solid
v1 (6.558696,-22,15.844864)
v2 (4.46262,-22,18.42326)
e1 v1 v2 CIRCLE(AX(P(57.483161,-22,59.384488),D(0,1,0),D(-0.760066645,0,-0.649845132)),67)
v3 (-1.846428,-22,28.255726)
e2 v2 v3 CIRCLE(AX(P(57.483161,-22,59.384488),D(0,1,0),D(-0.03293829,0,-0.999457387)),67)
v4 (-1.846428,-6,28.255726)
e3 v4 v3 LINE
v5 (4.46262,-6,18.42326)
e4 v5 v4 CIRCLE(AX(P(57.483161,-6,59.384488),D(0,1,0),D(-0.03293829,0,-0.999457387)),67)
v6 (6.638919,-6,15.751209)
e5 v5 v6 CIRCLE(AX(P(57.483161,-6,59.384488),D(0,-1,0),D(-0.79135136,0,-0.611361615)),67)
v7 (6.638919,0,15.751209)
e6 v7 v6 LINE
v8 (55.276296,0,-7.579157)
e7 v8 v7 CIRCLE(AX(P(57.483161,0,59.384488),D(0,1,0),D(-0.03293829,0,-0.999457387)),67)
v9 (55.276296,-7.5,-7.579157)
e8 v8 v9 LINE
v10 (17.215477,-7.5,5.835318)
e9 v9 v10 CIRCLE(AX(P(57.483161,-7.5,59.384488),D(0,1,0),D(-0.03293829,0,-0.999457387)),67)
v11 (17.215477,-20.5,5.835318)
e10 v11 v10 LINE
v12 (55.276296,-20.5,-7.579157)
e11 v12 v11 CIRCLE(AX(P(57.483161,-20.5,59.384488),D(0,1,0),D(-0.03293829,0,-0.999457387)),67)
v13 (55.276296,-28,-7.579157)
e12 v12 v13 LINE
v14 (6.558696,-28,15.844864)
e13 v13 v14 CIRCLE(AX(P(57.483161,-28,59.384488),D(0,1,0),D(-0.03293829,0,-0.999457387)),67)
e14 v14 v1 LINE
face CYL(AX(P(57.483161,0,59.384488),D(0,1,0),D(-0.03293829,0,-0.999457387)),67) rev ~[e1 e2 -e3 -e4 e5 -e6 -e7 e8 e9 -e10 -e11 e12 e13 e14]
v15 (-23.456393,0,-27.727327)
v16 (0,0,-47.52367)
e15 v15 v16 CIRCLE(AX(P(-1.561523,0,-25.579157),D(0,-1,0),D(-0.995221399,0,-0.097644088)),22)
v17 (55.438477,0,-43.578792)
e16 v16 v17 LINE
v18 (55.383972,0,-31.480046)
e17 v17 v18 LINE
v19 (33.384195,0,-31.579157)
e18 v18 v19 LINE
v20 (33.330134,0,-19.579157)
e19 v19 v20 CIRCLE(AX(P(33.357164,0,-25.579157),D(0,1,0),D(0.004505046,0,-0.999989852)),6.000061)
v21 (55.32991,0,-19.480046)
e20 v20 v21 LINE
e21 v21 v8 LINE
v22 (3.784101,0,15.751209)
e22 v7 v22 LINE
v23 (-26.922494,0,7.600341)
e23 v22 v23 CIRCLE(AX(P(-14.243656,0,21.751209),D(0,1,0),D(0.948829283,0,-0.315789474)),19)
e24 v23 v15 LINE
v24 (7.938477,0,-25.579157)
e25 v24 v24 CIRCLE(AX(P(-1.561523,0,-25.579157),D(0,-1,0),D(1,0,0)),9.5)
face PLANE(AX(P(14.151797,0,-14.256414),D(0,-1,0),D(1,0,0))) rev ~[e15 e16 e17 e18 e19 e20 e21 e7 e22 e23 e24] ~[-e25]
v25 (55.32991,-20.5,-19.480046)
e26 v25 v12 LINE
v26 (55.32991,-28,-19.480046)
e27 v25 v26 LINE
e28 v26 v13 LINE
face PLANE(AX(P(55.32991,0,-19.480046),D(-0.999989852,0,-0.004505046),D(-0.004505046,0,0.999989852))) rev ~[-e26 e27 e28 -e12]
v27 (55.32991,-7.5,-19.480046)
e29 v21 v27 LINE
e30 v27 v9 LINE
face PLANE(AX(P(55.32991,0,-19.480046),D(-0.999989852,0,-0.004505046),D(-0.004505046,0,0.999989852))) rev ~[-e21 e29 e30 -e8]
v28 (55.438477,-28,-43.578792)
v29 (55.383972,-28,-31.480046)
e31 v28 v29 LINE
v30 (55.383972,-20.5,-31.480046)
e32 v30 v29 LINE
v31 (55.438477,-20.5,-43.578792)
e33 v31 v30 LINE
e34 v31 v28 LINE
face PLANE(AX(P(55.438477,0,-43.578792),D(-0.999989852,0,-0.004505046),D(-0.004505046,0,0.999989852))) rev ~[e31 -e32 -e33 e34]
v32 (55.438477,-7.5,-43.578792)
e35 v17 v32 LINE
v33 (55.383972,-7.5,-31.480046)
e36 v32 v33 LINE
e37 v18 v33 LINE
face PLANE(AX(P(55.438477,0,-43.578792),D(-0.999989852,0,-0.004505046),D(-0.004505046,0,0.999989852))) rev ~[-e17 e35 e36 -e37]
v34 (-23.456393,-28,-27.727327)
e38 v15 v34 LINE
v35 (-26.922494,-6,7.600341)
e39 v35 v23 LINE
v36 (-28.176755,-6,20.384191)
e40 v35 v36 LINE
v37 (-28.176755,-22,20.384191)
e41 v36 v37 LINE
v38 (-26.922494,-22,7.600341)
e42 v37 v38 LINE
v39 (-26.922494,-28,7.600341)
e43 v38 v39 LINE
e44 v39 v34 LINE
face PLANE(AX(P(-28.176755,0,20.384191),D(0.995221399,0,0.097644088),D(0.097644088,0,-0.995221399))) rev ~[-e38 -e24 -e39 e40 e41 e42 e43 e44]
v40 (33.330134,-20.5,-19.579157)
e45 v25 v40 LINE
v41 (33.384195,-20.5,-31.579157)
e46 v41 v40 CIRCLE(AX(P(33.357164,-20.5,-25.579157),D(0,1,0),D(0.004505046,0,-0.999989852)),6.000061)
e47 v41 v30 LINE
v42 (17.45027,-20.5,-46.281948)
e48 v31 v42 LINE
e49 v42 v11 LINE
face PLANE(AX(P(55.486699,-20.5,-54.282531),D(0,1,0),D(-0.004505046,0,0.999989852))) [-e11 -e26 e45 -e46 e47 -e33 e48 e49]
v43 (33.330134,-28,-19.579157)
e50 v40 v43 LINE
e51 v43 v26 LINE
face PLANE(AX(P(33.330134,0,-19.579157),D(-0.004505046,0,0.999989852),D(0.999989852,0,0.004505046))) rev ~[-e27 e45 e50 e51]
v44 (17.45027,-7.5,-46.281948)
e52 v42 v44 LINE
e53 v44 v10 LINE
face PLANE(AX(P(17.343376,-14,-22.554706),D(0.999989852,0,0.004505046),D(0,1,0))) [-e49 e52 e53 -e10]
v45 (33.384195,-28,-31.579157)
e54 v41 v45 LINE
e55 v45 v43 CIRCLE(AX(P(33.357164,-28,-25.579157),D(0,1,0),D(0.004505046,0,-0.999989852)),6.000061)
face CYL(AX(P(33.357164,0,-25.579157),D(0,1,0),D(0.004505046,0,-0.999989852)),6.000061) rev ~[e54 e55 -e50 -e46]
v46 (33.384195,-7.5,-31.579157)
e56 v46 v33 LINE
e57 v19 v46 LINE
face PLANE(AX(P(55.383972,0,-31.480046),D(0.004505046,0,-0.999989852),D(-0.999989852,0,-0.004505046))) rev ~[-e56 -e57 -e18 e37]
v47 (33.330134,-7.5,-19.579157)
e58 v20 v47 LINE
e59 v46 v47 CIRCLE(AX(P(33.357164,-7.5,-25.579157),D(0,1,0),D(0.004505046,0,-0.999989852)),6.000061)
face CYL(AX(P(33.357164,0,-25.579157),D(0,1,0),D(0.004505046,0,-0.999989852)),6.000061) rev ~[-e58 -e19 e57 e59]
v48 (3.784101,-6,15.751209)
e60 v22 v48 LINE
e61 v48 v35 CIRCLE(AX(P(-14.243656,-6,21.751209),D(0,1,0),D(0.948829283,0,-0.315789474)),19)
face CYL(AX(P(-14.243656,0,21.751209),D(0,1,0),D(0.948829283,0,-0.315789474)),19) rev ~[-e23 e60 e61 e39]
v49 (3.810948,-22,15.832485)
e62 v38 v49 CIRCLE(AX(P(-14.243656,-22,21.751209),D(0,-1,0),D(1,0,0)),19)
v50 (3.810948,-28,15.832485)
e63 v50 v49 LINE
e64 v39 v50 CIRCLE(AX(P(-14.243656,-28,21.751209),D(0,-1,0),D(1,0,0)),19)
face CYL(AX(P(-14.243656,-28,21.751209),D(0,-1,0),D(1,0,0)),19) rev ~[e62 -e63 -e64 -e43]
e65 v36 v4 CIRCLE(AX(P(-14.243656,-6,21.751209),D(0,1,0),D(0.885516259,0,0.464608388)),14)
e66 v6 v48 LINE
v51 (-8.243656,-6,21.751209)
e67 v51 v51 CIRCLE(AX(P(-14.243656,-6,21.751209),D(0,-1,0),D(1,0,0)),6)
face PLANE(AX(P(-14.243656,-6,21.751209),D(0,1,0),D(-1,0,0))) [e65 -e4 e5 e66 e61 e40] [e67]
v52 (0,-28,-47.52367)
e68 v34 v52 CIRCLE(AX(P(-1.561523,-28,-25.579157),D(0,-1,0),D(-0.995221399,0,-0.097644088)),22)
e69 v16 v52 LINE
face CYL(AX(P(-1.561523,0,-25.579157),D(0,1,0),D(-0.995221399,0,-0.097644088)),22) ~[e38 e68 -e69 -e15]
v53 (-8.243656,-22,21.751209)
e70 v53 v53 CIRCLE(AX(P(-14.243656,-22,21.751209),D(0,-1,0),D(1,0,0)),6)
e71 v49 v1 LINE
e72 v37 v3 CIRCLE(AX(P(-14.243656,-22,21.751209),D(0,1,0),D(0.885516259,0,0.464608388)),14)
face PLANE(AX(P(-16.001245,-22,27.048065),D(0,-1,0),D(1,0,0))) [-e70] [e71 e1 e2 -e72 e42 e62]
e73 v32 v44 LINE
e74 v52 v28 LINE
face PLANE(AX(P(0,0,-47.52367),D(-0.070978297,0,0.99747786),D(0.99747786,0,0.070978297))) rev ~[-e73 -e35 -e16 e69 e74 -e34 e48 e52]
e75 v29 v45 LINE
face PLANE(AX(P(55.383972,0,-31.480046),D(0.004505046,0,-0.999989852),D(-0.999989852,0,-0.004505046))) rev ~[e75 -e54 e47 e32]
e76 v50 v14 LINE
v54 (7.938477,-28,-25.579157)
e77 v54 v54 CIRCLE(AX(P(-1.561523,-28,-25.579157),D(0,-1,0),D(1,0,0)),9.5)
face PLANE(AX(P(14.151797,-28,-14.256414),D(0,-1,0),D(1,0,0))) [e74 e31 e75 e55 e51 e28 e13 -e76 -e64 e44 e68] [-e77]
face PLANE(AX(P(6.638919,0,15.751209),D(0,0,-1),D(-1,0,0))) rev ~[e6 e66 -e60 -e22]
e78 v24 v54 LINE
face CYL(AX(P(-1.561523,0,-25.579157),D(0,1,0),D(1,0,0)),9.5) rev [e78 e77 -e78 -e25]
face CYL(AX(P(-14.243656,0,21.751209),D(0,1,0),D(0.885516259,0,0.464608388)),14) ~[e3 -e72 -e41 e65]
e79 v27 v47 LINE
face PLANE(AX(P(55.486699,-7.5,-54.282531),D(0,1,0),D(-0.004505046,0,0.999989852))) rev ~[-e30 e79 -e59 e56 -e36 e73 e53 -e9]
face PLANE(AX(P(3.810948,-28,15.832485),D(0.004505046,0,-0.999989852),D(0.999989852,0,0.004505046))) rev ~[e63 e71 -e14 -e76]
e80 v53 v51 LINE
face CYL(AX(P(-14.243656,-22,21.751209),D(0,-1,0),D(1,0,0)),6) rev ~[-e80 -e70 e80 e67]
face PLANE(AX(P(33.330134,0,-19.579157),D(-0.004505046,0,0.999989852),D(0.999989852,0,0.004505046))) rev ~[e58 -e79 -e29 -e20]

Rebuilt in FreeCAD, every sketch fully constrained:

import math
import FreeCAD as App
import Part
import Sketcher

V = App.Vector
Q = App.Units.Quantity


def add_polygon(sketch, points):
    """Adds a closed chain of lines whose ends are joined by coincident constraints."""
    first, n = sketch.GeometryCount, len(points)
    for a, b in zip(points, points[1:] + points[:1]):
        sketch.addGeometry(Part.LineSegment(App.Vector(*a, 0), App.Vector(*b, 0)), False)
    for i in range(n):
        sketch.addConstraint(Sketcher.Constraint("Coincident", first + i, 2, first + (i + 1) % n, 1))

doc = App.newDocument("Part")
body = doc.addObject("PartDesign::Body", "Body")

# Sketch on XZ plane
sketch1 = body.newObject("Sketcher::SketchObject", "Sketch")
sketch1.AttachmentSupport = (doc.getObject("XZ_Plane"), [""])
sketch1.MapMode = "FlatFace"
sketch1.addGeometry([
    Part.LineSegment(V(55.32991, -19.480046, 0), V(55.276296, -7.579157, 0)),  # 0
    Part.ArcOfCircle(Part.Circle(V(57.483161, 59.384488, 0), V(0, 0, 1), 67), math.radians(-152.315119), math.radians(-91.887566)),  # 1
    Part.ArcOfCircle(Part.Circle(V(-14.243656, 21.751209, 0), V(0, 0, 1), 14), math.radians(27.684881), math.radians(185.603523)),  # 2
    Part.LineSegment(V(-28.176755, 20.384191, 0), V(-23.456393, -27.727327, 0)),  # 3
    Part.ArcOfCircle(Part.Circle(V(-1.561523, -25.579157, 0), V(0, 0, 1), 22), math.radians(-174.396477), math.radians(-85.929821)),  # 4
    Part.LineSegment(V(0, -47.52367, 0), V(55.438477, -43.578792, 0)),  # 5
    Part.LineSegment(V(55.438477, -43.578792, 0), V(55.383972, -31.480046, 0)),  # 6
    Part.LineSegment(V(55.383972, -31.480046, 0), V(33.384195, -31.579157, 0)),  # 7
    Part.ArcOfCircle(Part.Circle(V(33.357164, -25.579157, 0), V(0, 0, 1), 6.000061), math.radians(90.258121), math.radians(270.258121)),  # 8
    Part.LineSegment(V(33.330134, -19.579157, 0), V(55.32991, -19.480046, 0)),  # 9
    Part.Circle(V(-1.561523, -25.579157, 0), V(0, 0, 1), 9.5),  # 10
], False)
sketch1.addConstraint([
    Sketcher.Constraint("Coincident", 0, 2, 1, 2),
    Sketcher.Constraint("Coincident", 1, 1, 2, 1),
    Sketcher.Constraint("Coincident", 2, 2, 3, 1),
    Sketcher.Constraint("Coincident", 3, 2, 4, 1),
    Sketcher.Constraint("Coincident", 4, 2, 5, 1),
    Sketcher.Constraint("Coincident", 5, 2, 6, 1),
    Sketcher.Constraint("Coincident", 6, 2, 7, 1),
    Sketcher.Constraint("Coincident", 7, 2, 8, 2),
    Sketcher.Constraint("Coincident", 8, 1, 9, 1),
    Sketcher.Constraint("Coincident", 9, 2, 0, 1),
    Sketcher.Constraint("Coincident", 10, 3, 4, 3),
    Sketcher.Constraint("PointOnObject", 4, 2, -2),
    Sketcher.Constraint("Diameter", 10, Q("19 mm")),
    Sketcher.Constraint("Radius", 1, Q("67 mm")),
    Sketcher.Constraint("Radius", 2, Q("14 mm")),
    Sketcher.Constraint("Radius", 4, Q("22 mm")),
    Sketcher.Constraint("Distance", 7, Q("22 mm")),
    Sketcher.Constraint("Distance", 9, Q("22 mm")),
    Sketcher.Constraint("DistanceY", 8, 3, 0, 2, Q("18 mm")),
    Sketcher.Constraint("DistanceY", 4, 3, 0, 2, Q("18 mm")),
    Sketcher.Constraint("DistanceX", 4, 3, 5, 2, Q("57 mm")),
    Sketcher.Constraint("DistanceY", 7, 2, 8, 3, Q("6 mm")),
    Sketcher.Constraint("DistanceY", 8, 3, 8, 1, Q("6 mm")),
    Sketcher.Constraint("DistanceY", 6, 2, 9, 2, Q("12 mm")),
    Sketcher.Constraint("DistanceX", 2, 2, 2, 3, Q("13.9331 mm")),
    Sketcher.Constraint("DistanceX", 7, 2, 0, 2, Q("21.892101 mm")),
    Sketcher.Constraint("Distance", 0, Q("11.90101 mm")),
    Sketcher.Constraint("Distance", 6, Q("12.098868 mm")),
    Sketcher.Constraint("DistanceX", -1, 1, 1, 3, Q("57.483161 mm")),
    Sketcher.Constraint("DistanceY", -1, 1, 2, 3, Q("21.751209 mm")),
    Sketcher.Constraint("DistanceX", 1, 1, -1, 1, Q("1.846428 mm")),
    Sketcher.Constraint("DistanceY", 4, 2, -1, 1, Q("47.52367 mm")),
    Sketcher.Constraint("DistanceY", 5, 2, -1, 1, Q("43.578792 mm")),
    Sketcher.Constraint("DistanceX", -1, 1, 6, 2, Q("55.383972 mm")),
    Sketcher.Constraint("DistanceX", -1, 1, 9, 2, Q("55.32991 mm")),
    Sketcher.Constraint("DistanceX", 3, 2, 4, 3, Q("21.894871 mm")),
])
pad1 = body.newObject("PartDesign::Pad", "Pad")
pad1.Profile = sketch1
pad1.Length = 28

# Sketch on XZ plane
sketch2 = body.newObject("Sketcher::SketchObject", "Sketch001")
sketch2.AttachmentSupport = (doc.getObject("XZ_Plane"), [""])
sketch2.MapMode = "FlatFace"
sketch2.AttachmentOffset = App.Placement(V(0, 0, 28), App.Rotation())
sketch2.addGeometry([
    Part.ArcOfCircle(Part.Circle(V(-14.2, 21.8, 0), V(0, 0, 1), 19), math.radians(-10.09), math.radians(0)),
    Part.ArcOfCircle(Part.Circle(V(-14.2, 21.8, 0), V(0, 0, 1), 19), math.radians(0), math.radians(342)),
    Part.LineSegment(V(3.8, 15.8, 0), V(6.6, 15.8, 0)),
    Part.ArcOfCircle(Part.Circle(V(57.5, 59.4, 0), V(0, 0, 1), 67), math.radians(-142.31), math.radians(-139.47)),
], False)
sketch2.addConstraint([
    Sketcher.Constraint("Tangent", 0, 2, 1, 1),
    Sketcher.Constraint("Coincident", 1, 2, 2, 1),
    Sketcher.Constraint("Coincident", 2, 2, 3, 2),
    Sketcher.Constraint("Coincident", 3, 1, 0, 1),
    Sketcher.Constraint("Equal", 0, 1),
    Sketcher.Constraint("Horizontal", 1, 3, 0, 2),
    Sketcher.Constraint("Radius", 0, Q("19 mm")),
    Sketcher.Constraint("Radius", 3, Q("67 mm")),
    Sketcher.Constraint("DistanceY", -1, 1, 0, 3, Q("21.751209 mm")),
    Sketcher.Constraint("DistanceX", -1, 1, 3, 3, Q("57.483161 mm")),
    Sketcher.Constraint("DistanceX", -1, 1, 3, 1, Q("4.46262 mm")),
    Sketcher.Constraint("DistanceY", -1, 1, 3, 1, Q("18.42326 mm")),
    Sketcher.Constraint("DistanceX", 1, 2, 2, 2, Q("2.747748 mm")),
    Sketcher.Constraint("DistanceY", 1, 2, 2, 2, Q("0.012379 mm")),
])
pocket1 = body.newObject("PartDesign::Pocket", "Pocket")
pocket1.Profile = sketch2
pocket1.Length = 6

# Sketch on XZ plane
sketch3 = body.newObject("Sketcher::SketchObject", "Sketch002")
sketch3.AttachmentSupport = (doc.getObject("XZ_Plane"), [""])
sketch3.MapMode = "FlatFace"
sketch3.AttachmentOffset = App.Placement(V(0, 0, 22), App.Rotation())
sketch3.addGeometry(Part.Circle(V(-14, 22, 0), V(0, 0, 1), 6), False)
sketch3.addConstraint([
    Sketcher.Constraint("Diameter", 0, Q("12 mm")),
    Sketcher.Constraint("DistanceY", -1, 1, 0, 3, Q("21.751209 mm")),
    Sketcher.Constraint("DistanceX", 0, 3, -1, 1, Q("14.243656 mm")),
])
pocket2 = body.newObject("PartDesign::Pocket", "Pocket001")
pocket2.Profile = sketch3
pocket2.Type = "ThroughAll"

# Sketch on an angled plane
sketch4 = body.newObject("Sketcher::SketchObject", "Sketch003")
sketch4.Placement = App.Placement(V(55.24103, 0, 0.248866), App.Rotation(V(0, 1, 0), V(-0.004505046, 0, 0.999989852), V(0.999989852, 0, 0.004505046), "ZXY"))
add_polygon(sketch4, [(-20, 9), (-20, -55), (-8, -55), (-8, 9)])  # lines 0-3
sketch4.addConstraint([
    Sketcher.Constraint("Vertical", 0),
    Sketcher.Constraint("Horizontal", 1),
    Sketcher.Constraint("Vertical", 2),
    Sketcher.Constraint("Horizontal", 3),
    Sketcher.Constraint("DistanceX", 1, 1, 1, 2, Q("13 mm")),
    Sketcher.Constraint("DistanceX", 0, 2, -1, 1, Q("20.5 mm")),
    Sketcher.Constraint("DistanceY", 0, 2, 0, 1, Q("63.798681 mm")),
    Sketcher.Constraint("DistanceY", 0, 2, -1, 1, Q("54.53195 mm")),
])
pocket3 = body.newObject("PartDesign::Pocket", "Pocket002")
pocket3.Profile = sketch4
pocket3.Length = 38

# Sketch on XZ plane
sketch5 = body.newObject("Sketcher::SketchObject", "Sketch004")
sketch5.AttachmentSupport = (doc.getObject("XZ_Plane"), [""])
sketch5.MapMode = "FlatFace"
sketch5.addGeometry([
    Part.ArcOfCircle(Part.Circle(V(57.5, 59.4, 0), V(0, 0, 1), 67), math.radians(-142.31), math.radians(-139.36)),
    Part.LineSegment(V(6.6, 15.8, 0), V(3.8, 15.8, 0)),
    Part.ArcOfCircle(Part.Circle(V(-14.2, 21.8, 0), V(0, 0, 1), 19), math.radians(-10), math.radians(342)),
], False)
sketch5.addConstraint([
    Sketcher.Constraint("Coincident", 0, 2, 1, 1),
    Sketcher.Constraint("Coincident", 1, 2, 2, 2),
    Sketcher.Constraint("Coincident", 2, 1, 0, 1),
    Sketcher.Constraint("Horizontal", 1),
    Sketcher.Constraint("Radius", 0, Q("67 mm")),
    Sketcher.Constraint("Radius", 2, Q("19 mm")),
    Sketcher.Constraint("DistanceY", 0, 2, 2, 3, Q("6 mm")),
    Sketcher.Constraint("DistanceX", 1, 2, 1, 1, Q("2.854819 mm")),
    Sketcher.Constraint("DistanceX", -1, 1, 1, 2, Q("3.784101 mm")),
    Sketcher.Constraint("DistanceX", -1, 1, 0, 3, Q("57.483161 mm")),
    Sketcher.Constraint("DistanceY", -1, 1, 2, 3, Q("21.751209 mm")),
])
pocket4 = body.newObject("PartDesign::Pocket", "Pocket003")
pocket4.Profile = sketch5
pocket4.Length = 6
pocket4.Reversed = True

doc.recompute()
